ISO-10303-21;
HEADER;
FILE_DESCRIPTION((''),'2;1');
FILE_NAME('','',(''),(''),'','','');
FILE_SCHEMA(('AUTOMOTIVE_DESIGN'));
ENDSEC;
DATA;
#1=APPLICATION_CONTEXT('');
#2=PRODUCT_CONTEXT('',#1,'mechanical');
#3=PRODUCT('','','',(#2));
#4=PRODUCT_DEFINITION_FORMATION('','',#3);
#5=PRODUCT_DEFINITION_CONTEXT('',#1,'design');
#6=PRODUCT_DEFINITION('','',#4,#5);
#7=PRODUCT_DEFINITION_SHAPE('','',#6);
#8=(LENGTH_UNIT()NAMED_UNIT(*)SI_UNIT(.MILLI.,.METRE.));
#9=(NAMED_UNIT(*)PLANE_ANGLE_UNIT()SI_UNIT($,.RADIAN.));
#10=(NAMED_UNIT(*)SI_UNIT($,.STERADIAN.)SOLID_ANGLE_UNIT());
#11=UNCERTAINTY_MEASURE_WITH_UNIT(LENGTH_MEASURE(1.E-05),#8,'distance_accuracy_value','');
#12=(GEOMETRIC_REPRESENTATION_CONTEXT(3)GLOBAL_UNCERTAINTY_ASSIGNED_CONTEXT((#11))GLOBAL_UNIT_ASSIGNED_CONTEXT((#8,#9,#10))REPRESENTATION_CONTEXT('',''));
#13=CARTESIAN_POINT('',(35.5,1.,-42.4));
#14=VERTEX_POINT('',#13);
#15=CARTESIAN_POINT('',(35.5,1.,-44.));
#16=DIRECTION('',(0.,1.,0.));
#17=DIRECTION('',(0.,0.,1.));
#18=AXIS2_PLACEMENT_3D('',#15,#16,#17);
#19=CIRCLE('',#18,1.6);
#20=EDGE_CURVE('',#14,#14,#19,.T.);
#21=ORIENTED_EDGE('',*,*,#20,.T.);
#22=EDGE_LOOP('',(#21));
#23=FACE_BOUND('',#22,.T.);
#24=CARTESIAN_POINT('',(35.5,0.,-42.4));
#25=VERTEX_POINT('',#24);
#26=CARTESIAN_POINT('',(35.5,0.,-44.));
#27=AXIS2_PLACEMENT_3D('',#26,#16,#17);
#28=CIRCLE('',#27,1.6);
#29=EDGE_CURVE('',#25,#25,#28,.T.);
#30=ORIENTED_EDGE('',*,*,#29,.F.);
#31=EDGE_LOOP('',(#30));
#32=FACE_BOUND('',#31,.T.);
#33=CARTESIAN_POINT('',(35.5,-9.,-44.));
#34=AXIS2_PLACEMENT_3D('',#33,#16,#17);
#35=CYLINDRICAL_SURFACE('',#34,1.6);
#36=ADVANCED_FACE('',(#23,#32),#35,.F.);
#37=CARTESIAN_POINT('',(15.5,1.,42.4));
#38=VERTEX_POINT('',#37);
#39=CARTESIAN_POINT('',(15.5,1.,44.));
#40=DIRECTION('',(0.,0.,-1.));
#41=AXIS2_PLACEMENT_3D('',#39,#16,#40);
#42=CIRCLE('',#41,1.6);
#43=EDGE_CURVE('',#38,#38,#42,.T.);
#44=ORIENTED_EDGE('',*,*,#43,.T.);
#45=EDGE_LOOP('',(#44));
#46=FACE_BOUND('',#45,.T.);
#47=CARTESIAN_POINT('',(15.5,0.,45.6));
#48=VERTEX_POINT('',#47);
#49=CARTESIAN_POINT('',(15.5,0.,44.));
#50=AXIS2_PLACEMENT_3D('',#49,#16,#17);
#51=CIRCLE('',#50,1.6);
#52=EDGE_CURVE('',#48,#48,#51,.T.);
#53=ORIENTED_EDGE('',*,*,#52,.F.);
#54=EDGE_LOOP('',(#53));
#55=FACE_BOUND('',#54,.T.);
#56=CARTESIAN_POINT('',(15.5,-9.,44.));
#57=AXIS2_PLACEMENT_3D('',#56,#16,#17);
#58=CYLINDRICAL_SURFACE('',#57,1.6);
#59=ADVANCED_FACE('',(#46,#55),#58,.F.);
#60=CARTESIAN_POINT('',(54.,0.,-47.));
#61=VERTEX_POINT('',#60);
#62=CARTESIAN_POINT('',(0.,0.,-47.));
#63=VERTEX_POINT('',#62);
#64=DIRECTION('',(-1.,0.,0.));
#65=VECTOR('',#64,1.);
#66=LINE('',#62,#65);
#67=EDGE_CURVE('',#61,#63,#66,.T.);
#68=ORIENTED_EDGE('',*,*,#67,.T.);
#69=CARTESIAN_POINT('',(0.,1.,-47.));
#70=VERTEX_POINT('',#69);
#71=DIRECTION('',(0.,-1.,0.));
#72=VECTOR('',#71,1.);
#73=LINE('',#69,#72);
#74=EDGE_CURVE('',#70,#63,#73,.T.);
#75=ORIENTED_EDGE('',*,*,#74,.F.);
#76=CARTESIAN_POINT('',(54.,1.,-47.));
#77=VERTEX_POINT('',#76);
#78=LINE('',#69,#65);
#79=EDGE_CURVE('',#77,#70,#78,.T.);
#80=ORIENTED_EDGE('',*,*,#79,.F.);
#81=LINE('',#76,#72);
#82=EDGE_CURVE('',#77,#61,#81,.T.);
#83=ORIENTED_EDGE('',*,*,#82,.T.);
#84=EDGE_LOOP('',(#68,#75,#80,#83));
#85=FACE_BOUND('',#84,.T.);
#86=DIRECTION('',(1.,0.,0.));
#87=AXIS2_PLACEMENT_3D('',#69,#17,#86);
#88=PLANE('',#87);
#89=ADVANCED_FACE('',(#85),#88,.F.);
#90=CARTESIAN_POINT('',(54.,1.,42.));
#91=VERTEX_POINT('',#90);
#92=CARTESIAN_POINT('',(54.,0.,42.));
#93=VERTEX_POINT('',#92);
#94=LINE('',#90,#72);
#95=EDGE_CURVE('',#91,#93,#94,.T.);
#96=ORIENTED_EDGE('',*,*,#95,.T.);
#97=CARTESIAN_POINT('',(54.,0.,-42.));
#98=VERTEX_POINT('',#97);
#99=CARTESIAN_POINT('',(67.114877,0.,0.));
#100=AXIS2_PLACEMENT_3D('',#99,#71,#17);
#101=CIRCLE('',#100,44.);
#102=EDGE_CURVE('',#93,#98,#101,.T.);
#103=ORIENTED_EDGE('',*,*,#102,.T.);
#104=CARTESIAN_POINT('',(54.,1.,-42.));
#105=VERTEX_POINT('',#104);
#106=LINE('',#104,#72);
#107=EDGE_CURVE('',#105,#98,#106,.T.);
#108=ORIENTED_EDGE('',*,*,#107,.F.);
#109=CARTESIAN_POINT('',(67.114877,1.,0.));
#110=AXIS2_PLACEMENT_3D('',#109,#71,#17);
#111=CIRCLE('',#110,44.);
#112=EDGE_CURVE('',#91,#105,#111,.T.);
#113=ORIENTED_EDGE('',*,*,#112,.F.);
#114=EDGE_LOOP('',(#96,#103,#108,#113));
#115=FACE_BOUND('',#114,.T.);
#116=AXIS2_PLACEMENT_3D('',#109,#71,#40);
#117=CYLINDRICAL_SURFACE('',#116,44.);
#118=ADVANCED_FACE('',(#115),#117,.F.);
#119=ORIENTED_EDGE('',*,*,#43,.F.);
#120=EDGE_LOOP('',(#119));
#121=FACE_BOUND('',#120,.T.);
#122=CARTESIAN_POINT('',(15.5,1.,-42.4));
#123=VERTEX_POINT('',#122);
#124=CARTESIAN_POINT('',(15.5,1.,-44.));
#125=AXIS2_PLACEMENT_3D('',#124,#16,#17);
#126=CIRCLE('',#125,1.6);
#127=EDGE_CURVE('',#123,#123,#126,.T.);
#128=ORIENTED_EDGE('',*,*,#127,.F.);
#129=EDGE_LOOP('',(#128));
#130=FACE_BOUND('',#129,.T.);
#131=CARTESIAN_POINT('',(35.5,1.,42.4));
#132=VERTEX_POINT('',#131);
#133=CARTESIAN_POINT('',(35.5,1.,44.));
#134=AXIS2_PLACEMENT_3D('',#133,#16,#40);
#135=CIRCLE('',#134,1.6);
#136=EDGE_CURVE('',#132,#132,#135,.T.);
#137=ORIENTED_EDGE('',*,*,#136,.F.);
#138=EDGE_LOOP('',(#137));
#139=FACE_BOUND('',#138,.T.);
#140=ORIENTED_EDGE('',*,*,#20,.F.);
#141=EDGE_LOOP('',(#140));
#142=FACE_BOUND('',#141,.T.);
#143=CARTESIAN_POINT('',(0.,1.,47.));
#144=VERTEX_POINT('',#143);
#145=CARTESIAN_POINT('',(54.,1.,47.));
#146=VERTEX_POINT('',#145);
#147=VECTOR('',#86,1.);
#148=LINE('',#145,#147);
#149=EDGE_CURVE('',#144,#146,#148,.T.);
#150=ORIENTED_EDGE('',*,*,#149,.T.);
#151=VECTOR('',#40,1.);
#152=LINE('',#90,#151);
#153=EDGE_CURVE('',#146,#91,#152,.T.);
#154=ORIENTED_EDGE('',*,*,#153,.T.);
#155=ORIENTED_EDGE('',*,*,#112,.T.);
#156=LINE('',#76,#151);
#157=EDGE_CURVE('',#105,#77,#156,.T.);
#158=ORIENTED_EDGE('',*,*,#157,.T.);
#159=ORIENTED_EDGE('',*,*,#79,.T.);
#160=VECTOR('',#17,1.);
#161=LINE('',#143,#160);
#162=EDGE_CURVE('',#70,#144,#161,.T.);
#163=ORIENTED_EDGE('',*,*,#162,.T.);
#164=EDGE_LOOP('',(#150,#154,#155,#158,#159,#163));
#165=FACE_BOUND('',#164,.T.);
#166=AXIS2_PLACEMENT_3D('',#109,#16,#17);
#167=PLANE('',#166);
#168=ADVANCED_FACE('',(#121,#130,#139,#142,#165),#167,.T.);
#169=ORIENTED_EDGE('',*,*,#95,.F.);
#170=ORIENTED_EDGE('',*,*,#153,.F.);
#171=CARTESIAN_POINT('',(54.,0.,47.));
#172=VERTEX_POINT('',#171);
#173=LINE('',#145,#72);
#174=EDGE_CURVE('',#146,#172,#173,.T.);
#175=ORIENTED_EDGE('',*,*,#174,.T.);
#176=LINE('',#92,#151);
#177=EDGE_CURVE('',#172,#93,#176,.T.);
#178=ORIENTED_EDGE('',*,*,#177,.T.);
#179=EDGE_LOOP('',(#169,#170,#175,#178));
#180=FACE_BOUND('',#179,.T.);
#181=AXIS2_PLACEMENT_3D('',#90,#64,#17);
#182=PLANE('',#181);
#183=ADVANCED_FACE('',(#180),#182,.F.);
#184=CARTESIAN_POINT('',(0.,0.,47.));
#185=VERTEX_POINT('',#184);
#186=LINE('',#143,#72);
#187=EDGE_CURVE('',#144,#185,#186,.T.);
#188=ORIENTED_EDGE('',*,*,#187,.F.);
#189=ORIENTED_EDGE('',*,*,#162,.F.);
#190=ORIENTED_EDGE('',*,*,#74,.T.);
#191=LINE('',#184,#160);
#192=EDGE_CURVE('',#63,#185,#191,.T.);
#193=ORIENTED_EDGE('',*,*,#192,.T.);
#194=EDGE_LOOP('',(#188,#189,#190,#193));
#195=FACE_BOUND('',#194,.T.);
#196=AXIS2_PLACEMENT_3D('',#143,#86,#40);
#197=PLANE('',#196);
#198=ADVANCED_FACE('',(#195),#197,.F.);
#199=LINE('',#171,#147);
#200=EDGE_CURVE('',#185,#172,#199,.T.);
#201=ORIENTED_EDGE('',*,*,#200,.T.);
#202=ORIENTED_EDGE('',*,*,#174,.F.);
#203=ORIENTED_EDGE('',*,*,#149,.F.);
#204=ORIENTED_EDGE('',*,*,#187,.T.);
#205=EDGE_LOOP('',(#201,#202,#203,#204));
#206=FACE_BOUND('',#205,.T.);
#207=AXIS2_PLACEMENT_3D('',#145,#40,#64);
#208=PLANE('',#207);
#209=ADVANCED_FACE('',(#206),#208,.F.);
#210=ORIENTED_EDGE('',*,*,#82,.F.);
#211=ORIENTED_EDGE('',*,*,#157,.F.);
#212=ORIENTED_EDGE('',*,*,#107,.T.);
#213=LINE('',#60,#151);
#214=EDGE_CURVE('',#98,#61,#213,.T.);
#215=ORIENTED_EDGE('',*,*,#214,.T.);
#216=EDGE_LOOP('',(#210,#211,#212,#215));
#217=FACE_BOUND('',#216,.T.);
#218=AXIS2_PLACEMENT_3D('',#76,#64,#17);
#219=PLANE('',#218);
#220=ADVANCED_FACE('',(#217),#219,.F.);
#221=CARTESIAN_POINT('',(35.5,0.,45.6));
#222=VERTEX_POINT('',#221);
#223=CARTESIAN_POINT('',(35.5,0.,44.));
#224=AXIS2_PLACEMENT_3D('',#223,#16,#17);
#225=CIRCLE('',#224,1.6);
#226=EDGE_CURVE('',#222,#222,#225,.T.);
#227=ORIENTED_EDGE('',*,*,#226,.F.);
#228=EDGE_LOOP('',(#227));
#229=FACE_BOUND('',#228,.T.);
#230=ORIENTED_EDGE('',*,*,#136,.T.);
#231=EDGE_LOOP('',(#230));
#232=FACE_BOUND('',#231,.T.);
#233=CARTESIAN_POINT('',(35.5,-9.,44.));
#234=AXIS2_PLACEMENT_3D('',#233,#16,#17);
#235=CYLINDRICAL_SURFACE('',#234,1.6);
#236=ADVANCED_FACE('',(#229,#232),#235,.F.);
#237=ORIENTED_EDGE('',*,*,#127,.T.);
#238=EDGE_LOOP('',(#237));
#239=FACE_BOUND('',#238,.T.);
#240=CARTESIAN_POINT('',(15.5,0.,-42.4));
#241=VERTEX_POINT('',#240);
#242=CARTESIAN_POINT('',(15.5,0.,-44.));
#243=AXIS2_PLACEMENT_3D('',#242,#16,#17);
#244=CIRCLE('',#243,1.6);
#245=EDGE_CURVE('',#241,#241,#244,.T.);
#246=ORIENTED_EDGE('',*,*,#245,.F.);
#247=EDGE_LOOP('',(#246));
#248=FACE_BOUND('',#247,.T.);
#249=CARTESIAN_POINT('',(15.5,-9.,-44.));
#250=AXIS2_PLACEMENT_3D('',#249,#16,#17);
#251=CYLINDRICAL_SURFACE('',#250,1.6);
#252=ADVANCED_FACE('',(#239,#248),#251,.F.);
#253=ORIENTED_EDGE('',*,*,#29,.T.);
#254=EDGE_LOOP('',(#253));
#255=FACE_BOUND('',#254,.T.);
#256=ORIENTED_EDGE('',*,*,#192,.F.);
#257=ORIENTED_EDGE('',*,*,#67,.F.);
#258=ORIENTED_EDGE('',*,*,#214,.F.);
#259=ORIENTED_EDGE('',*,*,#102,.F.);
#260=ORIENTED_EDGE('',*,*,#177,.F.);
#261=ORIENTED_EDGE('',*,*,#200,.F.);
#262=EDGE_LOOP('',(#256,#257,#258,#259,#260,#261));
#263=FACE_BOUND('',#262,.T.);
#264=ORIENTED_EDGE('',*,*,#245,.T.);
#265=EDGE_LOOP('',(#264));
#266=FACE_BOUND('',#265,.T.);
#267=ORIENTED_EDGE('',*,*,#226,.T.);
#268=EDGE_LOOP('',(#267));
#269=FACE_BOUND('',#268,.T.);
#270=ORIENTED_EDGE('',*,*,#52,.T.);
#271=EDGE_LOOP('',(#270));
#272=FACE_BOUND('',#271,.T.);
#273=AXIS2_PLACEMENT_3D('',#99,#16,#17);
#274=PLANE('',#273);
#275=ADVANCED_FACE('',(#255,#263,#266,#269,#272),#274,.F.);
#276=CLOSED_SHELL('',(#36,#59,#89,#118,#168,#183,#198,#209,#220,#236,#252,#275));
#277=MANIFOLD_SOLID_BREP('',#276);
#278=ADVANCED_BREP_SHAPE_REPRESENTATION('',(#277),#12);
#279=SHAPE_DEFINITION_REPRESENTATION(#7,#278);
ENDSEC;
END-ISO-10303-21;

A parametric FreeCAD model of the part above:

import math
import FreeCAD as App
import Part
import Sketcher
from FreeCAD import Vector
Q = App.Units.Quantity

doc = App.newDocument("Part")
body = doc.addObject("PartDesign::Body", "Body")

# Sketch on XZ plane
sketch1 = body.newObject("Sketcher::SketchObject", "Sketch")
sketch1.AttachmentSupport = (doc.getObject("XZ_Plane"), [""])
sketch1.MapMode = "FlatFace"
sketch1.addGeometry([
    Part.LineSegment(Vector(0, -47, 0), Vector(0, 47, 0)),  # 0
    Part.LineSegment(Vector(0, 47, 0), Vector(54, 47, 0)),  # 1
    Part.LineSegment(Vector(54, 47, 0), Vector(54, 42, 0)),  # 2
    Part.ArcOfCircle(Part.Circle(Vector(67, 0, 0), Vector(0, 0, 1), 44), math.radians(107), math.radians(253)),  # 3
    Part.LineSegment(Vector(54, -42, 0), Vector(54, -47, 0)),  # 4
    Part.LineSegment(Vector(54, -47, 0), Vector(0, -47, 0)),  # 5
], False)
sketch1.addConstraint([
    Sketcher.Constraint("Coincident", 0, 2, 1, 1),
    Sketcher.Constraint("Coincident", 1, 2, 2, 1),
    Sketcher.Constraint("Coincident", 2, 2, 3, 1),
    Sketcher.Constraint("Coincident", 3, 2, 4, 1),
    Sketcher.Constraint("Coincident", 4, 2, 5, 1),
    Sketcher.Constraint("Coincident", 5, 2, 0, 1),
    Sketcher.Constraint("Vertical", 0),
    Sketcher.Constraint("Horizontal", 1),
    Sketcher.Constraint("Vertical", 2),
    Sketcher.Constraint("Vertical", 4),
    Sketcher.Constraint("Horizontal", 5),
    Sketcher.Constraint("Symmetric", 0, 2, 5, 2, -1, 1),
    Sketcher.Constraint("Symmetric", 2, 2, 3, 2, -1),
    Sketcher.Constraint("Radius", 3, Q("44 mm")),
    Sketcher.Constraint("DistanceX", 1, 1, 1, 2, Q("54 mm")),
    Sketcher.Constraint("DistanceY", 0, 1, 0, 2, Q("94 mm")),
    Sketcher.Constraint("DistanceY", 2, 2, 2, 1, Q("5 mm")),
])
pad1 = body.newObject("PartDesign::Pad", "Pad")
pad1.Profile = sketch1
pad1.Length = 1
pad1.Reversed = True

# Sketch on XZ plane
sketch2 = body.newObject("Sketcher::SketchObject", "Sketch001")
sketch2.AttachmentSupport = (doc.getObject("XZ_Plane"), [""])
sketch2.MapMode = "FlatFace"
sketch2.AttachmentOffset = App.Placement(Vector(0, 0, -1), App.Rotation())
sketch2.addGeometry([
    Part.Circle(Vector(15.5, -44, 0), Vector(0, 0, 1), 1.6),
    Part.Circle(Vector(35.5, -44, 0), Vector(0, 0, 1), 1.6),
    Part.Circle(Vector(15.5, 44, 0), Vector(0, 0, 1), 1.6),
    Part.Circle(Vector(35.5, 44, 0), Vector(0, 0, 1), 1.6),
], False)
sketch2.addConstraint([
    Sketcher.Constraint("Equal", 0, 1),
    Sketcher.Constraint("Equal", 1, 2),
    Sketcher.Constraint("Equal", 2, 3),
    Sketcher.Constraint("Symmetric", 0, 3, 2, 3, -1),
    Sketcher.Constraint("Symmetric", 1, 3, 3, 3, -1),
    Sketcher.Constraint("Horizontal", 0, 3, 1, 3),
    Sketcher.Constraint("Diameter", 0, Q("3.2 mm")),
    Sketcher.Constraint("DistanceY", 0, 3, -1, 1, Q("44 mm")),
    Sketcher.Constraint("DistanceX", 0, 3, 1, 3, Q("20 mm")),
    Sketcher.Constraint("DistanceX", -1, 1, 0, 3, Q("15.5 mm")),
])
pocket1 = body.newObject("PartDesign::Pocket", "Pocket")
pocket1.Profile = sketch2
pocket1.Length = 10
pocket1.Reversed = True

doc.recompute()
